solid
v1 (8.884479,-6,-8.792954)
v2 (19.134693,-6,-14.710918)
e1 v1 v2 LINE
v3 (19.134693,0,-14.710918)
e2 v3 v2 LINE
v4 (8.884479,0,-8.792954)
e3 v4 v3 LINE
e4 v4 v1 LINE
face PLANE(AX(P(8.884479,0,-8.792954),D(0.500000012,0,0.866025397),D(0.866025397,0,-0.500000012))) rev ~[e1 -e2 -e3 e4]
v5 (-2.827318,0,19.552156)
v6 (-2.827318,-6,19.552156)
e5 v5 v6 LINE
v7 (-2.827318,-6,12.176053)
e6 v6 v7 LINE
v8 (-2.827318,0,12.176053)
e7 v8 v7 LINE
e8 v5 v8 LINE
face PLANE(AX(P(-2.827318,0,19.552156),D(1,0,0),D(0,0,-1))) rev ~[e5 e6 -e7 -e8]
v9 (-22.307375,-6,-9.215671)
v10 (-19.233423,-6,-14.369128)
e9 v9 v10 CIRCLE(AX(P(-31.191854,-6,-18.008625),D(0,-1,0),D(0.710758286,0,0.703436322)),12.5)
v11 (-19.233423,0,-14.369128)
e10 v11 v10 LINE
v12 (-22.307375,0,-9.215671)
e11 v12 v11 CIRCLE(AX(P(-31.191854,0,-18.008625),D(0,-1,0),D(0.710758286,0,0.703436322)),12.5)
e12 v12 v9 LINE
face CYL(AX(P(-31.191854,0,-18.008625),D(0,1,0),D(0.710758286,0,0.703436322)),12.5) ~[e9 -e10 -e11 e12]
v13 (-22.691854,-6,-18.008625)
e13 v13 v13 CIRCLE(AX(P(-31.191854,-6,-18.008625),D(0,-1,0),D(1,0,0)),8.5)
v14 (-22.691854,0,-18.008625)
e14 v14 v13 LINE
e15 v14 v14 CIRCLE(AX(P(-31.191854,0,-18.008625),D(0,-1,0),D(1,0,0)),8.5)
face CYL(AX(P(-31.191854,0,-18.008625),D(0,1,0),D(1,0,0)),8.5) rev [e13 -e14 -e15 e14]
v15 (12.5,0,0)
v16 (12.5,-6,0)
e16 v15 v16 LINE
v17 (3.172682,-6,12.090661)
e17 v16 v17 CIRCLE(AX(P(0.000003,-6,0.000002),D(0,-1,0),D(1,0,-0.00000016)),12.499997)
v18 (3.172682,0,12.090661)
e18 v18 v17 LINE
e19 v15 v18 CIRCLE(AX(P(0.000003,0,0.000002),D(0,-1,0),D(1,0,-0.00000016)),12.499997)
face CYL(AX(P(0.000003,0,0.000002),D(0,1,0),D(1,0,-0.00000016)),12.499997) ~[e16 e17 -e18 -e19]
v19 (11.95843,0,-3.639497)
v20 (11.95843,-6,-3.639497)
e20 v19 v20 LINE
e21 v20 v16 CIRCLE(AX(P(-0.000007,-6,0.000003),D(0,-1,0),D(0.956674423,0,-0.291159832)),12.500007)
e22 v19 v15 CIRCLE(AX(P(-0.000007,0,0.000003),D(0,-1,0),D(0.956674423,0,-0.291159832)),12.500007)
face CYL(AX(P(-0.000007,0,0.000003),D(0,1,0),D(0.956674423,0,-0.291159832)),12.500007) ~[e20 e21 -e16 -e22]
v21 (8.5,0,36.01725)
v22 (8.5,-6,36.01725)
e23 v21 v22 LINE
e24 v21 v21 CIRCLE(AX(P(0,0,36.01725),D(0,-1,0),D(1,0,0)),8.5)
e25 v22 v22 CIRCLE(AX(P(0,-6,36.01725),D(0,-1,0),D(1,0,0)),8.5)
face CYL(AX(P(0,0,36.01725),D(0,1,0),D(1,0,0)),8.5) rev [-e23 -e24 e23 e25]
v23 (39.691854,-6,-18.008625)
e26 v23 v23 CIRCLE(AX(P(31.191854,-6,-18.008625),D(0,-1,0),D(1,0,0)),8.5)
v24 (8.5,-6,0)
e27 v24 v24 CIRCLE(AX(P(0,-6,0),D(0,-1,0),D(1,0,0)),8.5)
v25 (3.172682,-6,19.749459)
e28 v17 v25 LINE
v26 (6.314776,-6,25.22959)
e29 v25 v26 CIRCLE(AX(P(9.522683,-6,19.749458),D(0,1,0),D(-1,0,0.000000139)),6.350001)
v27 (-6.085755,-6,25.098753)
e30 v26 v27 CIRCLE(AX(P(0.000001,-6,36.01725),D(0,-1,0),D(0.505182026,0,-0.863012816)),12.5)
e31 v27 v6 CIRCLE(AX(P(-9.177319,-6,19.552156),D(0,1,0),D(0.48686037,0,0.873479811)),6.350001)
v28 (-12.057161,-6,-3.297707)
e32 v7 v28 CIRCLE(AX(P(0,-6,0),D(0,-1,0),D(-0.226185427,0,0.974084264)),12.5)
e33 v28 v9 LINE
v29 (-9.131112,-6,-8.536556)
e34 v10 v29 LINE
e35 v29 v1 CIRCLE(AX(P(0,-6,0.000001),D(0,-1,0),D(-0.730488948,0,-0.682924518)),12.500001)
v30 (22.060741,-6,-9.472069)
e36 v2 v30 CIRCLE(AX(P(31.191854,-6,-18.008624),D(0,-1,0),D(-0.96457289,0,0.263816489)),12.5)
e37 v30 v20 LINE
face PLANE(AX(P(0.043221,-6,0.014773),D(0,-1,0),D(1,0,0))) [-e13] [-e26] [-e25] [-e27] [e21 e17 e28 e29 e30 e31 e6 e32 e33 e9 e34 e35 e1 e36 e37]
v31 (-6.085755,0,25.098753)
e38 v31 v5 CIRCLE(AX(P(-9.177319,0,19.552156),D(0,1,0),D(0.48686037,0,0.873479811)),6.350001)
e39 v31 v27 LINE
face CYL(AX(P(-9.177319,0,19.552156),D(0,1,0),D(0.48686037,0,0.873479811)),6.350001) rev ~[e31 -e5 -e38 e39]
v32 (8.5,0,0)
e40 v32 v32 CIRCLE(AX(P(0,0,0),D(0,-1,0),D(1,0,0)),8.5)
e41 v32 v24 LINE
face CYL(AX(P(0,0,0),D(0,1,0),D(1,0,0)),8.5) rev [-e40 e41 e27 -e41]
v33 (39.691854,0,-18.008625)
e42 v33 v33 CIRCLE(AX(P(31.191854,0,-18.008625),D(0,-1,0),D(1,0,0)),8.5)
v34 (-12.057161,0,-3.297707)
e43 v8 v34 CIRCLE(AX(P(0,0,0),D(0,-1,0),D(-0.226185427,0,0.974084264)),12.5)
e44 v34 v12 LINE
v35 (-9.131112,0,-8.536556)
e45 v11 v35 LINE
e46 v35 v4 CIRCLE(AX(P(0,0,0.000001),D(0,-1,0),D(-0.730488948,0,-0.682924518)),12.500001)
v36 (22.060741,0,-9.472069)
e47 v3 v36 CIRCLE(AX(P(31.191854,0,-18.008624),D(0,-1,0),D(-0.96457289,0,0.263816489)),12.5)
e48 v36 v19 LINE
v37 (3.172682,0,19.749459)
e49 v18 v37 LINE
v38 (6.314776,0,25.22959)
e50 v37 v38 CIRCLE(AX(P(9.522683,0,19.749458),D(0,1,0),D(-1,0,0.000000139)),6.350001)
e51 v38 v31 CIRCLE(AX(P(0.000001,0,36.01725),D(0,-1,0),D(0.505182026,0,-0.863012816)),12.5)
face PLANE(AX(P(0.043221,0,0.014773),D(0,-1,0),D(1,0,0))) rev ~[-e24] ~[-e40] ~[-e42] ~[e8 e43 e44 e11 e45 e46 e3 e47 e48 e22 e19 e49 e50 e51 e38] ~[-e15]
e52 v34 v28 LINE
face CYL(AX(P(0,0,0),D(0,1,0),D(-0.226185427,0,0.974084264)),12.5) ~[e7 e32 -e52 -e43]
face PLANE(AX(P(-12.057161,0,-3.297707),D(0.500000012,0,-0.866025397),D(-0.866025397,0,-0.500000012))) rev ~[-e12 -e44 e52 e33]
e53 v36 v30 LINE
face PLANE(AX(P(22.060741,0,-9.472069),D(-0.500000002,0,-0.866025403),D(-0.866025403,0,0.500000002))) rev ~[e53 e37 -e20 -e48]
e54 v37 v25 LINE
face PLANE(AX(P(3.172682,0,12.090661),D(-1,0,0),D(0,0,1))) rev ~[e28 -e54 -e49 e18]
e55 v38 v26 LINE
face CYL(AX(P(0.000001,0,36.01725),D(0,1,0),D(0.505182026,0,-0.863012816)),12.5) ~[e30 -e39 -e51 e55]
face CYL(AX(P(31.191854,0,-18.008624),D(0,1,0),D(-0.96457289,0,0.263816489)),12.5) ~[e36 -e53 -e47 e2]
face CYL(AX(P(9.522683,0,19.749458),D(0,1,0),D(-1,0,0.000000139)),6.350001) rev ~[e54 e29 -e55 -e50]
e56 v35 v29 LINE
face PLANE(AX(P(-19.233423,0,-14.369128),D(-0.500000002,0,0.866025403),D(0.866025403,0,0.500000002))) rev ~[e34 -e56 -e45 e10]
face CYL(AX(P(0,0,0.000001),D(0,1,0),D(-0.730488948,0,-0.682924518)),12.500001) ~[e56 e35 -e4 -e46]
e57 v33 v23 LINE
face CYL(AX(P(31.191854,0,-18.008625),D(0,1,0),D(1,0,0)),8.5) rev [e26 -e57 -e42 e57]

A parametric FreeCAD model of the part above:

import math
import FreeCAD as App
import Part
import Sketcher
from FreeCAD import Vector
Q = App.Units.Quantity

doc = App.newDocument("Part")
body = doc.addObject("PartDesign::Body", "Body")

# Sketch on XZ plane
sketch1 = body.newObject("Sketcher::SketchObject", "Sketch")
sketch1.AttachmentSupport = (doc.getObject("XZ_Plane"), [""])
sketch1.MapMode = "FlatFace"
sketch1.addGeometry(Part.ArcOfCircle(Part.Circle(Vector(0, 0, 0), Vector(0, 0, 1), 12.5), math.radians(0), math.radians(75)), False)
sketch1.addGeometry(Part.LineSegment(Vector(3.2, 12.1, 0), Vector(3.2, 19.7, 0)), False)
sketch1.addGeometry(Part.ArcOfCircle(Part.Circle(Vector(9.5, 19.7, 0), Vector(0, 0, 1), 6.4), math.radians(120), math.radians(180)), False)
sketch1.addGeometry(Part.ArcOfCircle(Part.Circle(Vector(0, 36, 0), Vector(0, 0, 1), 12.5), math.radians(-60), math.radians(241)), False)
sketch1.addGeometry(Part.ArcOfCircle(Part.Circle(Vector(-9.2, 19.6, 0), Vector(0, 0, 1), 6.4), math.radians(0), math.radians(61)), False)
sketch1.addGeometry(Part.LineSegment(Vector(-2.8, 19.6, 0), Vector(-2.8, 12.2, 0)), False)
sketch1.addGeometry(Part.ArcOfCircle(Part.Circle(Vector(0, 0, 0), Vector(0, 0, 1), 12.5), math.radians(103), math.radians(195)), False)
sketch1.addGeometry(Part.LineSegment(Vector(-12.1, -3.3, 0), Vector(-22.3, -9.2, 0)), False)
sketch1.addGeometry(Part.ArcOfCircle(Part.Circle(Vector(-31.2, -18, 0), Vector(0, 0, 1), 12.5), math.radians(45), math.radians(377)), False)
sketch1.addGeometry(Part.LineSegment(Vector(-19.2, -14.4, 0), Vector(-9.1, -8.5, 0)), False)
sketch1.addGeometry(Part.ArcOfCircle(Part.Circle(Vector(0, 0, 0), Vector(0, 0, 1), 12.5), math.radians(-137), math.radians(-45)), False)
sketch1.addGeometry(Part.LineSegment(Vector(8.9, -8.8, 0), Vector(19.1, -14.7, 0)), False)
sketch1.addGeometry(Part.ArcOfCircle(Part.Circle(Vector(31.2, -18, 0), Vector(0, 0, 1), 12.5), math.radians(165), math.radians(497)), False)
sketch1.addGeometry(Part.LineSegment(Vector(22.1, -9.5, 0), Vector(12, -3.6, 0)), False)
sketch1.addGeometry(Part.ArcOfCircle(Part.Circle(Vector(0, 0, 0), Vector(0, 0, 1), 12.5), math.radians(-16.93), math.radians(0)), False)
sketch1.addGeometry(Part.Circle(Vector(-31.2, -18, 0), Vector(0, 0, 1), 8.5), False)
sketch1.addGeometry(Part.Circle(Vector(31.2, -18, 0), Vector(0, 0, 1), 8.5), False)
sketch1.addGeometry(Part.Circle(Vector(0, 0, 0), Vector(0, 0, 1), 8.5), False)
sketch1.addGeometry(Part.Circle(Vector(0, 36, 0), Vector(0, 0, 1), 8.5), False)
sketch1.addConstraint(Sketcher.Constraint("Coincident", 0, 2, 1, 1))
sketch1.addConstraint(Sketcher.Constraint("Tangent", 1, 2, 2, 2))
sketch1.addConstraint(Sketcher.Constraint("Tangent", 2, 1, 3, 1))
sketch1.addConstraint(Sketcher.Constraint("Tangent", 3, 2, 4, 2))
sketch1.addConstraint(Sketcher.Constraint("Tangent", 4, 1, 5, 1))
sketch1.addConstraint(Sketcher.Constraint("Coincident", 5, 2, 6, 1))
sketch1.addConstraint(Sketcher.Constraint("Coincident", 6, 2, 7, 1))
sketch1.addConstraint(Sketcher.Constraint("Coincident", 7, 2, 8, 1))
sketch1.addConstraint(Sketcher.Constraint("Coincident", 8, 2, 9, 1))
sketch1.addConstraint(Sketcher.Constraint("Coincident", 9, 2, 10, 1))
sketch1.addConstraint(Sketcher.Constraint("Coincident", 10, 2, 11, 1))
sketch1.addConstraint(Sketcher.Constraint("Coincident", 11, 2, 12, 1))
sketch1.addConstraint(Sketcher.Constraint("Coincident", 12, 2, 13, 1))
sketch1.addConstraint(Sketcher.Constraint("Coincident", 13, 2, 14, 1))
sketch1.addConstraint(Sketcher.Constraint("Tangent", 14, 2, 0, 1))
sketch1.addConstraint(Sketcher.Constraint("Vertical", 1))
sketch1.addConstraint(Sketcher.Constraint("Vertical", 5))
sketch1.addConstraint(Sketcher.Constraint("Coincident", 0, 3, -1, 1))
sketch1.addConstraint(Sketcher.Constraint("Coincident", 6, 3, -1, 1))
sketch1.addConstraint(Sketcher.Constraint("Coincident", 10, 3, -1, 1))
sketch1.addConstraint(Sketcher.Constraint("Coincident", 17, 3, -1, 1))
sketch1.addConstraint(Sketcher.Constraint("Coincident", 15, 3, 8, 3))
sketch1.addConstraint(Sketcher.Constraint("Coincident", 16, 3, 12, 3))
sketch1.addConstraint(Sketcher.Constraint("Coincident", 18, 3, 3, 3))
sketch1.addConstraint(Sketcher.Constraint("Equal", 2, 4))
sketch1.addConstraint(Sketcher.Constraint("Equal", 3, 6))
sketch1.addConstraint(Sketcher.Constraint("Equal", 6, 8))
sketch1.addConstraint(Sketcher.Constraint("Equal", 8, 10))
sketch1.addConstraint(Sketcher.Constraint("Equal", 10, 12))
sketch1.addConstraint(Sketcher.Constraint("Equal", 15, 16))
sketch1.addConstraint(Sketcher.Constraint("Equal", 16, 17))
sketch1.addConstraint(Sketcher.Constraint("Equal", 17, 18))
sketch1.addConstraint(Sketcher.Constraint("Symmetric", 8, 3, 12, 3, -2))
sketch1.addConstraint(Sketcher.Constraint("PointOnObject", 3, 3, -2))
sketch1.addConstraint(Sketcher.Constraint("PointOnObject", 14, 2, -1))
sketch1.addConstraint(Sketcher.Constraint("Parallel", 7, 9))
sketch1.addConstraint(Sketcher.Constraint("Parallel", 11, 13))
sketch1.addConstraint(Sketcher.Constraint("Equal", 7, 11))
sketch1.addConstraint(Sketcher.Constraint("Equal", 9, 13))
sketch1.addConstraint(Sketcher.Constraint("Diameter", 15, Q("17 mm")))
sketch1.addConstraint(Sketcher.Constraint("Radius", 3, Q("12.5 mm")))
sketch1.addConstraint(Sketcher.Constraint("Angle", 7, Q("-149.999999 deg")))
sketch1.addConstraint(Sketcher.Constraint("Angle", 11, Q("-30.000001 deg")))
sketch1.addConstraint(Sketcher.Constraint("Radius", 2, Q("6.350001 mm")))
sketch1.addConstraint(Sketcher.Constraint("DistanceX", 4, 1, 1, 2, Q("6 mm")))
sketch1.addConstraint(Sketcher.Constraint("DistanceX", -1, 1, 14, 2, Q("12.5 mm")))
sketch1.addConstraint(Sketcher.Constraint("DistanceY", 1, 1, 1, 2, Q("7.658798 mm")))
sketch1.addConstraint(Sketcher.Constraint("Radius", 14, Q("12.500007 mm")))
sketch1.addConstraint(Sketcher.Constraint("DistanceY", 13, 2, 0, 3, Q("3.639499 mm")))
sketch1.addConstraint(Sketcher.Constraint("DistanceY", 5, 2, 5, 1, Q("7.376103 mm")))
sketch1.addConstraint(Sketcher.Constraint("DistanceX", 6, 2, -1, 1, Q("12.057161 mm")))
sketch1.addConstraint(Sketcher.Constraint("DistanceY", 7, 2, -1, 1, Q("9.215671 mm")))
sketch1.addConstraint(Sketcher.Constraint("DistanceX", -1, 1, 10, 2, Q("8.884479 mm")))
pad1 = body.newObject("PartDesign::Pad", "Pad")
pad1.Profile = sketch1
pad1.Length = 6

doc.recompute()
